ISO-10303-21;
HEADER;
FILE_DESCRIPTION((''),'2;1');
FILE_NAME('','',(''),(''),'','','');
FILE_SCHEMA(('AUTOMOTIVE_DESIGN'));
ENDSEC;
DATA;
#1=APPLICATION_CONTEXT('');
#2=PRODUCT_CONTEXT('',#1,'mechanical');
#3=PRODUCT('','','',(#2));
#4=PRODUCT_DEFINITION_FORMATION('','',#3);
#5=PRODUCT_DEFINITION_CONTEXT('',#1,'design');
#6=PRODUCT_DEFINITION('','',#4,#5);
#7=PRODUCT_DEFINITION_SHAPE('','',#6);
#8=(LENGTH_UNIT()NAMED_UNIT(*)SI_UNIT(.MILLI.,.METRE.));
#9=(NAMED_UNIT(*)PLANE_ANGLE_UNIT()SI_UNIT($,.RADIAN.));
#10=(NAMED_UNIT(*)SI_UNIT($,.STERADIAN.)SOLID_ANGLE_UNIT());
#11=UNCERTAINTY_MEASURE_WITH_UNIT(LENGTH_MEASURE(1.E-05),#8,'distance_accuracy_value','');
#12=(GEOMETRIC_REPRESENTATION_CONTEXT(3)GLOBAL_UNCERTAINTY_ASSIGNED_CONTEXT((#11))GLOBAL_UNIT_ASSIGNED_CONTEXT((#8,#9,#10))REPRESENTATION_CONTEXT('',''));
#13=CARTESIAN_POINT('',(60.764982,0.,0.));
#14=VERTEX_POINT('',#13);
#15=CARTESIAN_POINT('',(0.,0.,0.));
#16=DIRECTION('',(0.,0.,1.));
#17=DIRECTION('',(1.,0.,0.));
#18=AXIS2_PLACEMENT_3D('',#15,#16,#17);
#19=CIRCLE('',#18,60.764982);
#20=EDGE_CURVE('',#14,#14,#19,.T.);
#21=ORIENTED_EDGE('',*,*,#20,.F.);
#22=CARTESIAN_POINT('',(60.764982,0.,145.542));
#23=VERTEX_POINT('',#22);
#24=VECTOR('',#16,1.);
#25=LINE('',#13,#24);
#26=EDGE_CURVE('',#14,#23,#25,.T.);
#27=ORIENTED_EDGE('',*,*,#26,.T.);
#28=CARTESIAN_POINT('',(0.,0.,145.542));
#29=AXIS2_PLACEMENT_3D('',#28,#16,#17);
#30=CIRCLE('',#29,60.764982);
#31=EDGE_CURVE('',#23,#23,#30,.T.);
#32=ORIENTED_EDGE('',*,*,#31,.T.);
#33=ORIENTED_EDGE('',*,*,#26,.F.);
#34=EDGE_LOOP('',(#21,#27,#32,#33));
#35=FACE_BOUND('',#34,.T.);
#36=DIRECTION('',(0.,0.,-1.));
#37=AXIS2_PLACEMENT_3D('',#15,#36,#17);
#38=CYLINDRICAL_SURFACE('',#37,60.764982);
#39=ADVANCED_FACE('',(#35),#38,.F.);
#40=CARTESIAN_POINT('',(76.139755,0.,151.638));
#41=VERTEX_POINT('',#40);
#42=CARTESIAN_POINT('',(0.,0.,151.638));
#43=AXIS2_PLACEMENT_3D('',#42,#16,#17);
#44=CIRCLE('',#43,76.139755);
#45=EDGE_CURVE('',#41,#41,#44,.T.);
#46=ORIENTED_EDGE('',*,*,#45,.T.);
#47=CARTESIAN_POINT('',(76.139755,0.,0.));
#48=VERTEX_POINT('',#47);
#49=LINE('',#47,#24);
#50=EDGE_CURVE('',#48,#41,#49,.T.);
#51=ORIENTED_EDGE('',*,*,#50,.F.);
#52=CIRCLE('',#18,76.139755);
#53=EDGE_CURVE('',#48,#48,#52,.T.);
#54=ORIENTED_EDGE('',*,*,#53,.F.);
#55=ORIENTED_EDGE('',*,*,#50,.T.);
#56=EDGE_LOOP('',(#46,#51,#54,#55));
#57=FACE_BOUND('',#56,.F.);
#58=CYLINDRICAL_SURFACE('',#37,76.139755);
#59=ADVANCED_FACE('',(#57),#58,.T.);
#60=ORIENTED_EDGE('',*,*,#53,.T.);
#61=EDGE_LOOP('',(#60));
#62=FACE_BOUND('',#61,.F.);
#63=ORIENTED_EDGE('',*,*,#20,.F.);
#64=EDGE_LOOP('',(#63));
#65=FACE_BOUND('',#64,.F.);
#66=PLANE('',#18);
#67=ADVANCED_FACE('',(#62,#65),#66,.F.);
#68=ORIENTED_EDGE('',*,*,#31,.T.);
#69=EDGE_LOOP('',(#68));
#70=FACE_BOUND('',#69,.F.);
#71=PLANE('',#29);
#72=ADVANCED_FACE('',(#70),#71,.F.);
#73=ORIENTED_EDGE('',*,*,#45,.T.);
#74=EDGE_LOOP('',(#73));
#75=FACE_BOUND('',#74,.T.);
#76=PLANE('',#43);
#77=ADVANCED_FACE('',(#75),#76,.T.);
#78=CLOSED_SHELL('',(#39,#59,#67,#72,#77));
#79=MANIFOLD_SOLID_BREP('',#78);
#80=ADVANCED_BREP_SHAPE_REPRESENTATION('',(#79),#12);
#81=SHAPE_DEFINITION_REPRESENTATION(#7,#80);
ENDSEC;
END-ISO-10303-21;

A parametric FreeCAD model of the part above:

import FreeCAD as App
import Part
import Sketcher

V = App.Vector
Q = App.Units.Quantity

doc = App.newDocument("Part")
body = doc.addObject("PartDesign::Body", "Body")

sketch1 = body.newObject("Sketcher::SketchObject", "Sketch")
sketch1.AttachmentSupport = (doc.getObject("XY_Plane"), [""])
sketch1.MapMode = "FlatFace"
sketch1.addGeometry(Part.Circle(V(0, 0, 0), V(0, 0, 1), 76), False)
sketch1.addConstraint([
    Sketcher.Constraint("Coincident", 0, 3, -1, 1),
    Sketcher.Constraint("Diameter", 0, 152.27951),
])
pad1 = body.newObject("PartDesign::Pad", "Pad")
pad1.Profile = sketch1
pad1.Length = Q("5.97 in")

sketch2 = body.newObject("Sketcher::SketchObject", "Sketch001")
sketch2.AttachmentSupport = (doc.getObject("XY_Plane"), [""])
sketch2.MapMode = "FlatFace"
sketch2.addGeometry(Part.Circle(V(0, 0, 0), V(0, 0, 1), 67), False)
sketch2.addConstraint([
    Sketcher.Constraint("Coincident", 0, 3, -1, 1),
    Sketcher.Constraint("Diameter", 0, 134.990048),
])
pad2 = body.newObject("PartDesign::Pad", "Pad001")
pad2.Profile = sketch2
pad2.Length = Q("5.87 in")

sketch3 = body.newObject("Sketcher::SketchObject", "Sketch002")
sketch3.AttachmentSupport = (doc.getObject("XY_Plane"), [""])
sketch3.MapMode = "FlatFace"
sketch3.addGeometry([
    Part.Circle(V(0, 0, 0), V(0, 0, 1), 68),
    Part.Circle(V(0, 0, 0), V(0, 0, 1), 60),
], False)
sketch3.addConstraint([
    Sketcher.Constraint("Coincident", 0, 3, -1, 1),
    Sketcher.Constraint("Coincident", 1, 3, -1, 1),
    Sketcher.Constraint("Diameter", 1, 119.788702),
    Sketcher.Constraint("Diameter", 0, 136.47516),
])
pocket1 = body.newObject("PartDesign::Pocket", "Pocket")
pocket1.Profile = sketch3
pocket1.Length = Q("1 in")

sketch4 = body.newObject("Sketcher::SketchObject", "Sketch003")
sketch4.AttachmentSupport = (doc.getObject("XY_Plane"), [""])
sketch4.MapMode = "FlatFace"
sketch4.addGeometry(Part.Circle(V(0, 0, 0), V(0, 0, 1), 61), False)
sketch4.addConstraint([
    Sketcher.Constraint("Coincident", 0, 3, -1, 1),
    Sketcher.Constraint("Diameter", 0, 121.529964),
])
pocket2 = body.newObject("PartDesign::Pocket", "Pocket001")
pocket2.Profile = sketch4
pocket2.Length = Q("5.73 in")
pocket2.Reversed = True

doc.recompute()
